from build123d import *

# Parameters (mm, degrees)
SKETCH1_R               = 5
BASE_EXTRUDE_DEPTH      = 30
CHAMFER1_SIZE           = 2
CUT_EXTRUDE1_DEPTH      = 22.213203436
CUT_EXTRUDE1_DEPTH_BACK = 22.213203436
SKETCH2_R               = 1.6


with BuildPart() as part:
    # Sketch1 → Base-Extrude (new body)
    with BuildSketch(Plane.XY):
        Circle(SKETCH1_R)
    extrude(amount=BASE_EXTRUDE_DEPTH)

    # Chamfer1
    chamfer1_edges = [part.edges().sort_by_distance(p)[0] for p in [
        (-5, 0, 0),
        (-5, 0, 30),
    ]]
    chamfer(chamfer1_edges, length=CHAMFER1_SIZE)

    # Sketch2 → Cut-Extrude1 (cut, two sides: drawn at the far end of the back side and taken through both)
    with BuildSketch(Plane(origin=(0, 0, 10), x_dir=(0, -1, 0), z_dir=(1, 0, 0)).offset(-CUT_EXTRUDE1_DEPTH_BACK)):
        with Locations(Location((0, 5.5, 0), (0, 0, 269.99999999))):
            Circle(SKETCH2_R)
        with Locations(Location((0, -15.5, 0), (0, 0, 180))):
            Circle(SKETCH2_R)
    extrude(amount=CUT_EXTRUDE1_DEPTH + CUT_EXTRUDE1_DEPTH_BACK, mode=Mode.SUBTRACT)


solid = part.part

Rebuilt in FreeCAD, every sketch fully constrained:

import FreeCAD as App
import Part
import Sketcher


def edges_at(feature, points):
    """Names of the edges that pass closest to the given points."""
    edges = feature.Shape.Edges
    near = lambda p: min(range(len(edges)), key=lambda i: edges[i].distToShape(Part.Vertex(*p))[0])
    return sorted({f"Edge{near(p) + 1}" for p in points})

doc = App.newDocument("Part")
params = doc.addObject("Spreadsheet::Sheet", "Params")
for row, (alias, value) in enumerate([
    ("sketch1_diameter", "10 mm"),
    ("pad1_length", "30 mm"),
    ("chamfer_size", "2 mm"),
    ("sketch2_diameter", "3.2 mm"),
], start=1):
    params.set(f"A{row}", alias)
    params.set(f"B{row}", "=" + value)
    params.setAlias(f"B{row}", alias)

body = doc.addObject("PartDesign::Body", "Body")

sketch1 = doc.addObject("Sketcher::SketchObject", "Sketch")
body.addObject(sketch1)
sketch1.AttachmentSupport = (doc.XY_Plane, [""])
sketch1.MapMode = "FlatFace"
sketch1.addGeometry(Part.Circle(App.Vector(0, 0, 0), App.Vector(0, 0, 1), 5), False)
sketch1.addConstraint(Sketcher.Constraint("Coincident", 0, 3, -1, 1))
sketch1.addConstraint(Sketcher.Constraint("Diameter", 0, 10.0))
sketch1.setExpression("Constraints[1]", "Params.sketch1_diameter")
pad1 = doc.addObject("PartDesign::Pad", "Pad")
body.addObject(pad1)
pad1.Profile = sketch1
pad1.setExpression("Length", "Params.pad1_length")
doc.recompute()

chamfer = doc.addObject("PartDesign::Chamfer", "Chamfer")
body.addObject(chamfer)
chamfer.Base = (pad1, edges_at(pad1, [(-5, 0, 0), (-5, 0, 30)]))
chamfer.setExpression("Size", "Params.chamfer_size")

sketch2 = doc.addObject("Sketcher::SketchObject", "Sketch001")
body.addObject(sketch2)
sketch2.AttachmentSupport = (doc.YZ_Plane, [""])
sketch2.MapMode = "FlatFace"
sketch2.addGeometry(Part.Circle(App.Vector(0, 4.5, 0), App.Vector(0, 0, 1), 1.6), False)
sketch2.addGeometry(Part.Circle(App.Vector(0, 25.5, 0), App.Vector(0, 0, 1), 1.6), False)
sketch2.addConstraint(Sketcher.Constraint("Equal", 0, 1))
sketch2.addConstraint(Sketcher.Constraint("PointOnObject", 0, 3, -2))
sketch2.addConstraint(Sketcher.Constraint("PointOnObject", 1, 3, -2))
sketch2.addConstraint(Sketcher.Constraint("Diameter", 0, 3.2))
sketch2.addConstraint(Sketcher.Constraint("DistanceY", 0, 3, 1, 3, 21.0))
sketch2.addConstraint(Sketcher.Constraint("DistanceY", -1, 1, 0, 3, 4.5))
sketch2.setExpression("Constraints[3]", "Params.sketch2_diameter")
pocket1 = doc.addObject("PartDesign::Pocket", "Pocket")
body.addObject(pocket1)
pocket1.Profile = sketch2
pocket1.Type = "ThroughAll"
pocket1.Midplane = True

doc.recompute()
